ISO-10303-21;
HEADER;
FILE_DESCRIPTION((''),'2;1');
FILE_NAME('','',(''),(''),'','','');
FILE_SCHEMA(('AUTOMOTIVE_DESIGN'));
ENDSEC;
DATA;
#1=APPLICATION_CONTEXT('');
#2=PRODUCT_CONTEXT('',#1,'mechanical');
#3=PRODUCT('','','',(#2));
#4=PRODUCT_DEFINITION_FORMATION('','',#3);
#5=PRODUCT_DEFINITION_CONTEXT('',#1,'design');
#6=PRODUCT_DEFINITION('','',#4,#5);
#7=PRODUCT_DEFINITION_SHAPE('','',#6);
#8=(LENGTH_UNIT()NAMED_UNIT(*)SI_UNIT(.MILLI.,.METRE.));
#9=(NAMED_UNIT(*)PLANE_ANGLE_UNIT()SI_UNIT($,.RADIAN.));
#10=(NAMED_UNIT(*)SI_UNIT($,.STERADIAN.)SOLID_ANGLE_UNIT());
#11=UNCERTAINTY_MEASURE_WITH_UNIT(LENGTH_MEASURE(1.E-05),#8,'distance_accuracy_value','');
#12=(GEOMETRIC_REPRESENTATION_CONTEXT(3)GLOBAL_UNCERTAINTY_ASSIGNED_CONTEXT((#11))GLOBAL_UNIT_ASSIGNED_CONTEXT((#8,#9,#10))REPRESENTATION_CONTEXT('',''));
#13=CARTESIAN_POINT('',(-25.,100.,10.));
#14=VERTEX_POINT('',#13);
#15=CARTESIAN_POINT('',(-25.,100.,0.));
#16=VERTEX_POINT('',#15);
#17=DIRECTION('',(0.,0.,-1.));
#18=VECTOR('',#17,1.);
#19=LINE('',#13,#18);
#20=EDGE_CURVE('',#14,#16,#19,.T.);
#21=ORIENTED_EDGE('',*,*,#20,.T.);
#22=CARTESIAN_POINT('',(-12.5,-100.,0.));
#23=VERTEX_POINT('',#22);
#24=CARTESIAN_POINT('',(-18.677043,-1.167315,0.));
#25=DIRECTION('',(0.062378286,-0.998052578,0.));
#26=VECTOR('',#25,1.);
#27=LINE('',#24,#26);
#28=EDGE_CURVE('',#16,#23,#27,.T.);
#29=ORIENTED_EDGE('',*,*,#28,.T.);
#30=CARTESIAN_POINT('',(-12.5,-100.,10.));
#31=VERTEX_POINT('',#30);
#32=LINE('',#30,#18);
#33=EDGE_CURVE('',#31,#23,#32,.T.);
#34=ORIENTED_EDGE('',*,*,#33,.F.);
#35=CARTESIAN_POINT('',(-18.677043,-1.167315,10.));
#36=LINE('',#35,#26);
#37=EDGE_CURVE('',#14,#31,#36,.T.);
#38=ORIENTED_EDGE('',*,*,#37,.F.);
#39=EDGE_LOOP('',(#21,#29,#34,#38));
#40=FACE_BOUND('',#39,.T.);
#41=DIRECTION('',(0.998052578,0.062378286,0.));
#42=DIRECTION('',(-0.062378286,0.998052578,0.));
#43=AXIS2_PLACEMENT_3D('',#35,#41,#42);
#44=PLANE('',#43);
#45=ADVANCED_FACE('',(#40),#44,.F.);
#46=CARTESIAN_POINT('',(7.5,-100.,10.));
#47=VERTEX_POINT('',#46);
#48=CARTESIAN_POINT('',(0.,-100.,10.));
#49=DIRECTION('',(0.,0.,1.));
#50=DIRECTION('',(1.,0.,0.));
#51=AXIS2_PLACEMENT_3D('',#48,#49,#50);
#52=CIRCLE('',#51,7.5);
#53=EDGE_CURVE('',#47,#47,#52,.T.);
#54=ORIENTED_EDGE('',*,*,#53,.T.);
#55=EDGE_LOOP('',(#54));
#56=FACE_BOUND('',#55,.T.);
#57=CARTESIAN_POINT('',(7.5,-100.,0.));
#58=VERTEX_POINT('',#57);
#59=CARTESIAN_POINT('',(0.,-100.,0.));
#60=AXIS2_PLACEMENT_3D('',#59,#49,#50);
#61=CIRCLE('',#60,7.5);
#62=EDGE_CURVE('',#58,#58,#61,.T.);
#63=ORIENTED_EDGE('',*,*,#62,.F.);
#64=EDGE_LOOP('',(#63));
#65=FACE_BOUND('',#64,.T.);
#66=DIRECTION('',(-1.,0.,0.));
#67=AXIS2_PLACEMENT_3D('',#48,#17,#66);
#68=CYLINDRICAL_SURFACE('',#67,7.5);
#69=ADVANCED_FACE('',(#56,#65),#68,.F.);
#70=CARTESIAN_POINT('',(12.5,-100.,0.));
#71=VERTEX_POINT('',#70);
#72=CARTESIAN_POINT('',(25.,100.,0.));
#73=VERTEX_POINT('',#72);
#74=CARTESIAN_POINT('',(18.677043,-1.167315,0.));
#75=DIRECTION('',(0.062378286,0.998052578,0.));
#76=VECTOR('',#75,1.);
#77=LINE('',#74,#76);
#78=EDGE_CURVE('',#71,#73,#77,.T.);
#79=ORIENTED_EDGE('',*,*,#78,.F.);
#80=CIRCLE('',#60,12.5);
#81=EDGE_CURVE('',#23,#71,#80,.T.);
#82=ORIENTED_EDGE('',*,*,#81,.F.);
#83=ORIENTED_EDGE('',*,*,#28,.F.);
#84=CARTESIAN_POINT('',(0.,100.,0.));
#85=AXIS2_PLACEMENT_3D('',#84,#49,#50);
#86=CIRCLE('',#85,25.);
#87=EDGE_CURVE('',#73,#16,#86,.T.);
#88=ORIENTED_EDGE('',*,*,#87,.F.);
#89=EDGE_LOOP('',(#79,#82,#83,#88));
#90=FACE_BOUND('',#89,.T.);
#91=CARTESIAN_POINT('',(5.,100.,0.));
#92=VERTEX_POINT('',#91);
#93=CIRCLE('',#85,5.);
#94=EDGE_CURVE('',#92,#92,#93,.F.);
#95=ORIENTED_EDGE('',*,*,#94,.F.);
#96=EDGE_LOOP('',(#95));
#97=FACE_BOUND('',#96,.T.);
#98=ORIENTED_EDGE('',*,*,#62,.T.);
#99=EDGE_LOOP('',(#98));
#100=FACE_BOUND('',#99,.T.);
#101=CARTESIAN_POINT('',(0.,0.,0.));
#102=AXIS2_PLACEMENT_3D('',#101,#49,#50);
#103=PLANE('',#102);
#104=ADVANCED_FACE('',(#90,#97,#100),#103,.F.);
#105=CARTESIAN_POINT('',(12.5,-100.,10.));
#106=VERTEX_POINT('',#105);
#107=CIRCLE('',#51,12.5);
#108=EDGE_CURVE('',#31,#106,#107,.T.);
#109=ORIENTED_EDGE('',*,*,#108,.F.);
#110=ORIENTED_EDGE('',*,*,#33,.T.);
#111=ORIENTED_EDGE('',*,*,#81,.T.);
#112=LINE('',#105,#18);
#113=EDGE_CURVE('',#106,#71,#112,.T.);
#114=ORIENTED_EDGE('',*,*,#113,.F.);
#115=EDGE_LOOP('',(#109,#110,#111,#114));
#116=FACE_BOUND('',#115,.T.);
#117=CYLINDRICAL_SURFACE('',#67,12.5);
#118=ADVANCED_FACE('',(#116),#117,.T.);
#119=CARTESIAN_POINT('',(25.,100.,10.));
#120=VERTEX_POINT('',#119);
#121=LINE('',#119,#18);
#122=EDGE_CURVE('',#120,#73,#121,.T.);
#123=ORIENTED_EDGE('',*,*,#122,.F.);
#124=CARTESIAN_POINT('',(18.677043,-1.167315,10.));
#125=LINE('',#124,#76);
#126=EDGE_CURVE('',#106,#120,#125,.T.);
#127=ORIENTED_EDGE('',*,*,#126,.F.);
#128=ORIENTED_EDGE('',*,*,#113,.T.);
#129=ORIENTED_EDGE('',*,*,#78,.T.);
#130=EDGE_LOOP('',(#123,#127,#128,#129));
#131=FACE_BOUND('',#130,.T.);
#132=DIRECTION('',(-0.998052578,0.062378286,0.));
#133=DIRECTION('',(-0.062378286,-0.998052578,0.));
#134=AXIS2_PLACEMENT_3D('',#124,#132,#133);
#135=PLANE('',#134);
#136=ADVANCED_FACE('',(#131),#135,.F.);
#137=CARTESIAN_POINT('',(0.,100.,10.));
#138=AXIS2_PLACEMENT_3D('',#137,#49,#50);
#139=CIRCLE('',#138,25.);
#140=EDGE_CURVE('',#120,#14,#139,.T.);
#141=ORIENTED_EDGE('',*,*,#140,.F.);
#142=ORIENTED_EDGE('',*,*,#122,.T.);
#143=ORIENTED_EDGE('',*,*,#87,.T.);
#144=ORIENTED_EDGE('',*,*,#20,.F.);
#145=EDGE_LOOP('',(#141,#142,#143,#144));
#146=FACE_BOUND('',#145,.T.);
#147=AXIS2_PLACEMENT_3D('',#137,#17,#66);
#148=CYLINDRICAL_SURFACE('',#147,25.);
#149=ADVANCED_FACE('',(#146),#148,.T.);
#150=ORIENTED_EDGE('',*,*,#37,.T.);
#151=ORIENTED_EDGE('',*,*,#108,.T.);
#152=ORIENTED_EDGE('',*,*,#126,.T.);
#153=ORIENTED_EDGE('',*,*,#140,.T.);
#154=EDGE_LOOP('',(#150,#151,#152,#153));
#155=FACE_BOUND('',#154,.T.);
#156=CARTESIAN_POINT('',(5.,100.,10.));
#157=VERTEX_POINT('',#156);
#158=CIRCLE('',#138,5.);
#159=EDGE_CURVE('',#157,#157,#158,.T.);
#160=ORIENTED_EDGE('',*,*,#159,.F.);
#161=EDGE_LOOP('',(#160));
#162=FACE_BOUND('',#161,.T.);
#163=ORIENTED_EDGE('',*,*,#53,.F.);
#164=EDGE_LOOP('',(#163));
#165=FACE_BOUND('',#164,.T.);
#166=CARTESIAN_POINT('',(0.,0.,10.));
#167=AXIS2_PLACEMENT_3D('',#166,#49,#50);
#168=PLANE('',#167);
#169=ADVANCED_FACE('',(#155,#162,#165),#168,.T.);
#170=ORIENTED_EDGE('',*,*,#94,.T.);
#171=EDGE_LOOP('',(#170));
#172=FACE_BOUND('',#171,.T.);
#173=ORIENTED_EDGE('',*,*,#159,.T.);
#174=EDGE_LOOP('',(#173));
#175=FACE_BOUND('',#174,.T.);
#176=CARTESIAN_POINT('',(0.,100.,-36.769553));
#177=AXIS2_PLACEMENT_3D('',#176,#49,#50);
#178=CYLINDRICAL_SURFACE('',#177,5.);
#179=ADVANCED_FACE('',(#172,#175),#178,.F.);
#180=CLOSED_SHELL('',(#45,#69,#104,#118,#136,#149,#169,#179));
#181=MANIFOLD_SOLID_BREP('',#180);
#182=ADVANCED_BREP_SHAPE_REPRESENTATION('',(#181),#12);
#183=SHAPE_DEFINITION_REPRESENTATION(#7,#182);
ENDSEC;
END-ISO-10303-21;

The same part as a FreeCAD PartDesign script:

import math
import FreeCAD as App
import Part
import Sketcher
Q = App.Units.Quantity

doc = App.newDocument("Part")
body = doc.addObject("PartDesign::Body", "Body")

# Sketch on XY plane
sketch1 = doc.addObject("Sketcher::SketchObject", "Sketch")
body.addObject(sketch1)
sketch1.AttachmentSupport = (doc.XY_Plane, [""])
sketch1.MapMode = "FlatFace"
sketch1.addGeometry(Part.ArcOfCircle(Part.Circle(App.Vector(0, 100, 0), App.Vector(0, 0, 1), 25), math.radians(0), math.radians(180)), False)
sketch1.addGeometry(Part.LineSegment(App.Vector(-25, 100, 0), App.Vector(-24.805447, 96.88716, 0)), False)
sketch1.addGeometry(Part.LineSegment(App.Vector(-24.805447, 96.88716, 0), App.Vector(-12.5, -100, 0)), False)
sketch1.addGeometry(Part.ArcOfCircle(Part.Circle(App.Vector(0, -100, 0), App.Vector(0, 0, 1), 12.5), math.radians(180), math.radians(360)), False)
sketch1.addGeometry(Part.LineSegment(App.Vector(12.5, -100, 0), App.Vector(24.805447, 96.88716, 0)), False)
sketch1.addGeometry(Part.LineSegment(App.Vector(24.805447, 96.88716, 0), App.Vector(25, 100, 0)), False)
sketch1.addGeometry(Part.Circle(App.Vector(0, -100, 0), App.Vector(0, 0, 1), 7.5), False)
sketch1.addGeometry(Part.Circle(App.Vector(0, 100, 0), App.Vector(0, 0, 1), 13), False)
sketch1.addConstraint(Sketcher.Constraint("Coincident", 0, 2, 1, 1))
sketch1.addConstraint(Sketcher.Constraint("Coincident", 1, 2, 2, 1))
sketch1.addConstraint(Sketcher.Constraint("Coincident", 2, 2, 3, 1))
sketch1.addConstraint(Sketcher.Constraint("Coincident", 3, 2, 4, 1))
sketch1.addConstraint(Sketcher.Constraint("Coincident", 4, 2, 5, 1))
sketch1.addConstraint(Sketcher.Constraint("Coincident", 5, 2, 0, 1))
sketch1.addConstraint(Sketcher.Constraint("Coincident", 6, 3, 3, 3))
sketch1.addConstraint(Sketcher.Constraint("Coincident", 7, 3, 0, 3))
sketch1.addConstraint(Sketcher.Constraint("Symmetric", 0, 3, 3, 3, -1, 1))
sketch1.addConstraint(Sketcher.Constraint("Symmetric", 2, 2, 3, 2, -2))
sketch1.addConstraint(Sketcher.Constraint("Symmetric", 1, 2, 4, 2, -2))
sketch1.addConstraint(Sketcher.Constraint("Parallel", 1, 2))
sketch1.addConstraint(Sketcher.Constraint("Parallel", 4, 5))
sketch1.addConstraint(Sketcher.Constraint("Horizontal", 7, 3, 0, 2))
sketch1.addConstraint(Sketcher.Constraint("Horizontal", 6, 3, 2, 2))
sketch1.addConstraint(Sketcher.Constraint("Diameter", 6, Q("15 mm")))
sketch1.addConstraint(Sketcher.Constraint("Diameter", 7, Q("26 mm")))
sketch1.addConstraint(Sketcher.Constraint("Radius", 0, Q("25 mm")))
sketch1.addConstraint(Sketcher.Constraint("Radius", 3, Q("12.5 mm")))
sketch1.addConstraint(Sketcher.Constraint("DistanceY", -1, 1, 0, 3, Q("100 mm")))
sketch1.addConstraint(Sketcher.Constraint("Distance", 2, Q("197.27133 mm")))
pad1 = doc.addObject("PartDesign::Pad", "Pad")
body.addObject(pad1)
pad1.Profile = sketch1
pad1.Length = 10

# Sketch on XY plane
sketch2 = doc.addObject("Sketcher::SketchObject", "Sketch001")
body.addObject(sketch2)
sketch2.AttachmentSupport = (doc.XY_Plane, [""])
sketch2.MapMode = "FlatFace"
sketch2.AttachmentOffset = App.Placement(App.Vector(0, 0, 10), App.Rotation())
sketch2.addGeometry(Part.Circle(App.Vector(0, 100, 0), App.Vector(0, 0, 1), 13), False)
sketch2.addGeometry(Part.Circle(App.Vector(0, 100, 0), App.Vector(0, 0, 1), 5), False)
sketch2.addConstraint(Sketcher.Constraint("Coincident", 1, 3, 0, 3))
sketch2.addConstraint(Sketcher.Constraint("PointOnObject", 0, 3, -2))
sketch2.addConstraint(Sketcher.Constraint("Diameter", 0, Q("26 mm")))
sketch2.addConstraint(Sketcher.Constraint("Diameter", 1, Q("10 mm")))
sketch2.addConstraint(Sketcher.Constraint("DistanceY", -1, 1, 0, 3, Q("100 mm")))
pad2 = doc.addObject("PartDesign::Pad", "Pad001")
body.addObject(pad2)
pad2.Profile = sketch2
pad2.Length = 10
pad2.Reversed = True

doc.recompute()
